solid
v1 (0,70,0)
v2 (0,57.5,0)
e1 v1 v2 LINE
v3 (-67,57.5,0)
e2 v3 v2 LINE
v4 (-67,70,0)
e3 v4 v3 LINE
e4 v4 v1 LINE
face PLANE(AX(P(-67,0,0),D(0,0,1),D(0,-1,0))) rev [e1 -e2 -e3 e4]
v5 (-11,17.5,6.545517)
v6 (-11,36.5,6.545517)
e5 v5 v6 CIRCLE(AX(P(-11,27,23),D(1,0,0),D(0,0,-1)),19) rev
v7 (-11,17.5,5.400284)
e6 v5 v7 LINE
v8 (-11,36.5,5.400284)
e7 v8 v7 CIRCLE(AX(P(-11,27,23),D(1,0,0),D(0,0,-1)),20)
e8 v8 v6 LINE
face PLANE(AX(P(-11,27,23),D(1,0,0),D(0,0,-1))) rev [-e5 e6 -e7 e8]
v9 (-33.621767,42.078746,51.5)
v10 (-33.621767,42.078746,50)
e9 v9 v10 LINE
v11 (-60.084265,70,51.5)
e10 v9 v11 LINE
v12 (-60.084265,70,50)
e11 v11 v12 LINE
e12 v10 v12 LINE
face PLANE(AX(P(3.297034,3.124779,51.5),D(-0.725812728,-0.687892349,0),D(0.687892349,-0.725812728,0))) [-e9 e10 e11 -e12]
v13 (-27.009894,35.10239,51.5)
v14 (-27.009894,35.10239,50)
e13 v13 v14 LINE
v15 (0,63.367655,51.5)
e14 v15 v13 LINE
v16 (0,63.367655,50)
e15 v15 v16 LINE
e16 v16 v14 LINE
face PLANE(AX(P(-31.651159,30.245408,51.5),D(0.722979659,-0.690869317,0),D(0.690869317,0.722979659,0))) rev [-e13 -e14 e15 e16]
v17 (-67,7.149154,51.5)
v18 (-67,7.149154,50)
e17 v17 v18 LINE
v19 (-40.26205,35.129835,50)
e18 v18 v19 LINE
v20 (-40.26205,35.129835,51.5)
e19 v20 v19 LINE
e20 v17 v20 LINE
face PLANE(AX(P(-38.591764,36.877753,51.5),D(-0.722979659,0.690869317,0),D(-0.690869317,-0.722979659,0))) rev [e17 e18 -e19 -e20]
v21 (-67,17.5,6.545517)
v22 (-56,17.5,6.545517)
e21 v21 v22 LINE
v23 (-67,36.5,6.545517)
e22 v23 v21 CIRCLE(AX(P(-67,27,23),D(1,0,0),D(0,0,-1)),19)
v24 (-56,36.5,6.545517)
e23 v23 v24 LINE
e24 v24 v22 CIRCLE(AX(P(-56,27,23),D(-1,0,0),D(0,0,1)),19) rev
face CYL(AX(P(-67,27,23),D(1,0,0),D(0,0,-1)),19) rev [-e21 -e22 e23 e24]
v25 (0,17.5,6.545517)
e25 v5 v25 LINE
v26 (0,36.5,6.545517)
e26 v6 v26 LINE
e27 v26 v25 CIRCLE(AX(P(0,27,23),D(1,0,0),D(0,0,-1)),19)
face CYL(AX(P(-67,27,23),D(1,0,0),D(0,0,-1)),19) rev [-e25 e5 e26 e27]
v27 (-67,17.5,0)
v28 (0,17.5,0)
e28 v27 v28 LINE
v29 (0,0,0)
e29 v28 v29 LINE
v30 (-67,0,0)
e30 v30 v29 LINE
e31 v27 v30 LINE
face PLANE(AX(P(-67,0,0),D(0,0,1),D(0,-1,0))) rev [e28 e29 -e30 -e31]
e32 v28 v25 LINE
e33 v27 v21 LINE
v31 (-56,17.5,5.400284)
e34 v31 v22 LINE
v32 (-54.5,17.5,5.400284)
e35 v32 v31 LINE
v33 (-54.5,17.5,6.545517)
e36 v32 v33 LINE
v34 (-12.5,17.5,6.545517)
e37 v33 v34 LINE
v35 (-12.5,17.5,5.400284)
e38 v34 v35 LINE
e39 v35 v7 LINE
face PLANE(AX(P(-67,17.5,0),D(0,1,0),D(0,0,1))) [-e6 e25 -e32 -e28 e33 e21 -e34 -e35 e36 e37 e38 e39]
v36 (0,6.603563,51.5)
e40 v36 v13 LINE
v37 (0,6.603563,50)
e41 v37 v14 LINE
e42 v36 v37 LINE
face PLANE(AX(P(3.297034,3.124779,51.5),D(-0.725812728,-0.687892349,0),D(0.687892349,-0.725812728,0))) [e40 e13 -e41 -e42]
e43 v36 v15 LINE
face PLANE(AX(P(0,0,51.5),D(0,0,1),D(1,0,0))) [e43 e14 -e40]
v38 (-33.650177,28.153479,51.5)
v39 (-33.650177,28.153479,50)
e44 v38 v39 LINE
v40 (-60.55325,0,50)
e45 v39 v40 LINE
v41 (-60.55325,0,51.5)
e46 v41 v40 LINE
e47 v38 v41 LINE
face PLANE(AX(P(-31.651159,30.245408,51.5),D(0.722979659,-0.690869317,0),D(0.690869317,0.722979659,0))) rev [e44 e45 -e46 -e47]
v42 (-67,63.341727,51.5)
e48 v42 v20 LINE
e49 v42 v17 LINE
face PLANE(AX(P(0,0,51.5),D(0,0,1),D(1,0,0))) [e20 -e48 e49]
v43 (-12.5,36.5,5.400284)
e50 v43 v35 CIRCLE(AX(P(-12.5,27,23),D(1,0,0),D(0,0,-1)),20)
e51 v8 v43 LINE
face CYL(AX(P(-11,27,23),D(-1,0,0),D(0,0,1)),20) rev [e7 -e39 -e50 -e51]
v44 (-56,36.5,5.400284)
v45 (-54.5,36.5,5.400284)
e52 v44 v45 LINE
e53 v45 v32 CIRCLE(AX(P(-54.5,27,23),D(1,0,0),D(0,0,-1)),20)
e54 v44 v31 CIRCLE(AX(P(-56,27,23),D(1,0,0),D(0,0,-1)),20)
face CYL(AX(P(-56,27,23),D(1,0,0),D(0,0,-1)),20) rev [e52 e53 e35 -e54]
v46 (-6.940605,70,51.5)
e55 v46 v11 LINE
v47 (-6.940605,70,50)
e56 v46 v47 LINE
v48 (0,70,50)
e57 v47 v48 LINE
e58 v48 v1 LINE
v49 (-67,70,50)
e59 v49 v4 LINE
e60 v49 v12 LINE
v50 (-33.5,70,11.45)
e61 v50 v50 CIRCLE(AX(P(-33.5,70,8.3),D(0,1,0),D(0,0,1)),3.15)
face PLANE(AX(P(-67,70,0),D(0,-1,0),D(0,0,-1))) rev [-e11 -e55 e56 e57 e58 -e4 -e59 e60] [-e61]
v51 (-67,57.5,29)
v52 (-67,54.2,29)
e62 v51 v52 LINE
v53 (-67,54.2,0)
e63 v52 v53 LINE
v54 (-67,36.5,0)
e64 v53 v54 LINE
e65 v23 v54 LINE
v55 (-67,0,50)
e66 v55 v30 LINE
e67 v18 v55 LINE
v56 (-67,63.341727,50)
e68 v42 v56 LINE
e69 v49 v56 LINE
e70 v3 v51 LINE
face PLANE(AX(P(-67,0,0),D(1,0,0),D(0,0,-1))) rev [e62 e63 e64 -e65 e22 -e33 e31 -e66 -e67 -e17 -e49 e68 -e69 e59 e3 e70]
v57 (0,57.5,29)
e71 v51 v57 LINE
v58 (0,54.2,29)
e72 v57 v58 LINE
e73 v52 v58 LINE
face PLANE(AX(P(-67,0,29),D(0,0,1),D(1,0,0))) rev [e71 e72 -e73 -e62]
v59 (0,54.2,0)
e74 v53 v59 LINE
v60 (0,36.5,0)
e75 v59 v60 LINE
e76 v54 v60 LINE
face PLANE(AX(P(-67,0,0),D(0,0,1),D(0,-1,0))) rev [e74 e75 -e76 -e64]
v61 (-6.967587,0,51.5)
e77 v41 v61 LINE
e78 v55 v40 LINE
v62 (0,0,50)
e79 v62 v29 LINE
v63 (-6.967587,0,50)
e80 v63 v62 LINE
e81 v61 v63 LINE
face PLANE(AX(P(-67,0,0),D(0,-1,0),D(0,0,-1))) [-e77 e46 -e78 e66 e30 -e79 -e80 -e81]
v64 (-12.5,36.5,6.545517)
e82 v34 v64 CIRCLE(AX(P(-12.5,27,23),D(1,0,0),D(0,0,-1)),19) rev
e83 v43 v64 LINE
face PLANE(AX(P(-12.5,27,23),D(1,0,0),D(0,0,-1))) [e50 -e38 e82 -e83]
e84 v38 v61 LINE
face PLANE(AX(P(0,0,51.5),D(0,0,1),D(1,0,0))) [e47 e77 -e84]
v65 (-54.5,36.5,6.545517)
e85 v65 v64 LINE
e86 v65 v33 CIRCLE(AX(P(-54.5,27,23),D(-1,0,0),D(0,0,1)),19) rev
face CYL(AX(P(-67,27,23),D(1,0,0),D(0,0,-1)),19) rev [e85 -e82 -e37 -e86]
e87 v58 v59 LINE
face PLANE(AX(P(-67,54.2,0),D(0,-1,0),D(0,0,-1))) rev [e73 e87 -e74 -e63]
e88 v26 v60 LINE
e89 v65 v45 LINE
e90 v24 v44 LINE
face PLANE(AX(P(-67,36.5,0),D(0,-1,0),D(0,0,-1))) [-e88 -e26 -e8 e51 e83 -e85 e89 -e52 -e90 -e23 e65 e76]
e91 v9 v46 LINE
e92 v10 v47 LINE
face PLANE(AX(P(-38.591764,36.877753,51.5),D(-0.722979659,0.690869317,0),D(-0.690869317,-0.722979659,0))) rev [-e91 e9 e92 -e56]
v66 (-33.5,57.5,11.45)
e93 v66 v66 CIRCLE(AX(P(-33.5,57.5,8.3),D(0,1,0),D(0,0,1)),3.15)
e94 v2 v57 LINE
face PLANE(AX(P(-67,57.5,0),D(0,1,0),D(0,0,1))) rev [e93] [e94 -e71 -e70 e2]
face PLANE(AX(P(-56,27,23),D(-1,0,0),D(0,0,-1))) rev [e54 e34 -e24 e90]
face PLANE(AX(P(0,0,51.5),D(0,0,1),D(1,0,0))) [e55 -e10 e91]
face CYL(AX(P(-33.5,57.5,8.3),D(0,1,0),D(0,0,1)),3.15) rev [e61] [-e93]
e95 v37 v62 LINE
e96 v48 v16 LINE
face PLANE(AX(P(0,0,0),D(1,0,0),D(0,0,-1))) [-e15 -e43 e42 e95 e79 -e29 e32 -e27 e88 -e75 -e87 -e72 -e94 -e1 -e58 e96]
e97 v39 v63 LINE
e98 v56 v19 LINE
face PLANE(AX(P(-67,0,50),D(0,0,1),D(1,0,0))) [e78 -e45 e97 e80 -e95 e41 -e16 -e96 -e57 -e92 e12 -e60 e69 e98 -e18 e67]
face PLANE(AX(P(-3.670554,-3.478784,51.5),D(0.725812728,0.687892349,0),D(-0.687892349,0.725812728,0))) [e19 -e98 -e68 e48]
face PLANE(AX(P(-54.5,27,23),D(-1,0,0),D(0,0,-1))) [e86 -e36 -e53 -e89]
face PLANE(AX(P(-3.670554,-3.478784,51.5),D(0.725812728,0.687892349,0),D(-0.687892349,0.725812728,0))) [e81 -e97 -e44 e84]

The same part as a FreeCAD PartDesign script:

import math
import FreeCAD as App
import Part
import Sketcher
from FreeCAD import Vector

doc = App.newDocument("Part")
body = doc.addObject("PartDesign::Body", "Body")

# Sketch on YZ plane
sketch1 = doc.addObject("Sketcher::SketchObject", "Sketch")
body.addObject(sketch1)
sketch1.AttachmentSupport = (doc.YZ_Plane, [""])
sketch1.MapMode = "FlatFace"
sketch1.addGeometry(Part.LineSegment(Vector(70, 0, 0), Vector(70, 50, 0)), False)
sketch1.addGeometry(Part.LineSegment(Vector(70, 50, 0), Vector(0, 50, 0)), False)
sketch1.addGeometry(Part.LineSegment(Vector(0, 50, 0), Vector(0, 0, 0)), False)
sketch1.addGeometry(Part.LineSegment(Vector(0, 0, 0), Vector(17.5, 0, 0)), False)
sketch1.addGeometry(Part.LineSegment(Vector(17.5, 0, 0), Vector(17.5, 6.545517, 0)), False)
sketch1.addGeometry(Part.ArcOfCircle(Part.Circle(Vector(27, 23, 0), Vector(0, 0, 1), 19), math.radians(-60), math.radians(240)), False)
sketch1.addGeometry(Part.LineSegment(Vector(36.5, 6.545517, 0), Vector(36.5, 0, 0)), False)
sketch1.addGeometry(Part.LineSegment(Vector(36.5, 0, 0), Vector(54.2, 0, 0)), False)
sketch1.addGeometry(Part.LineSegment(Vector(54.2, 0, 0), Vector(54.2, 29, 0)), False)
sketch1.addGeometry(Part.LineSegment(Vector(54.2, 29, 0), Vector(57.5, 29, 0)), False)
sketch1.addGeometry(Part.LineSegment(Vector(57.5, 29, 0), Vector(57.5, 0, 0)), False)
sketch1.addGeometry(Part.LineSegment(Vector(57.5, 0, 0), Vector(70, 0, 0)), False)
sketch1.addConstraint(Sketcher.Constraint("Coincident", 0, 2, 1, 1))
sketch1.addConstraint(Sketcher.Constraint("Coincident", 1, 2, 2, 1))
sketch1.addConstraint(Sketcher.Constraint("Coincident", 2, 2, 3, 1))
sketch1.addConstraint(Sketcher.Constraint("Coincident", 3, 2, 4, 1))
sketch1.addConstraint(Sketcher.Constraint("Coincident", 4, 2, 5, 2))
sketch1.addConstraint(Sketcher.Constraint("Coincident", 5, 1, 6, 1))
sketch1.addConstraint(Sketcher.Constraint("Coincident", 6, 2, 7, 1))
sketch1.addConstraint(Sketcher.Constraint("Coincident", 7, 2, 8, 1))
sketch1.addConstraint(Sketcher.Constraint("Coincident", 8, 2, 9, 1))
sketch1.addConstraint(Sketcher.Constraint("Coincident", 9, 2, 10, 1))
sketch1.addConstraint(Sketcher.Constraint("Coincident", 10, 2, 11, 1))
sketch1.addConstraint(Sketcher.Constraint("Coincident", 11, 2, 0, 1))
sketch1.addConstraint(Sketcher.Constraint("Vertical", 0))
sketch1.addConstraint(Sketcher.Constraint("Horizontal", 1))
sketch1.addConstraint(Sketcher.Constraint("Vertical", 2))
sketch1.addConstraint(Sketcher.Constraint("Horizontal", 3))
sketch1.addConstraint(Sketcher.Constraint("Vertical", 4))
sketch1.addConstraint(Sketcher.Constraint("Vertical", 6))
sketch1.addConstraint(Sketcher.Constraint("Horizontal", 7))
sketch1.addConstraint(Sketcher.Constraint("Vertical", 8))
sketch1.addConstraint(Sketcher.Constraint("Horizontal", 9))
sketch1.addConstraint(Sketcher.Constraint("Vertical", 10))
sketch1.addConstraint(Sketcher.Constraint("Horizontal", 11))
sketch1.addConstraint(Sketcher.Constraint("Coincident", 2, 2, -1, 1))
sketch1.addConstraint(Sketcher.Constraint("PointOnObject", 6, 2, -1))
sketch1.addConstraint(Sketcher.Constraint("PointOnObject", 10, 2, -1))
sketch1.addConstraint(Sketcher.Constraint("Horizontal", 4, 2, 5, 1))
sketch1.addConstraint(Sketcher.Constraint("Radius", 5, 19.0))
sketch1.addConstraint(Sketcher.Constraint("DistanceX", 1, 2, 1, 1, 70.0))
sketch1.addConstraint(Sketcher.Constraint("DistanceY", 0, 1, 0, 2, 50.0))
sketch1.addConstraint(Sketcher.Constraint("DistanceY", 8, 1, 8, 2, 29.0))
sketch1.addConstraint(Sketcher.Constraint("DistanceX", 3, 1, 3, 2, 17.5))
sketch1.addConstraint(Sketcher.Constraint("DistanceX", 7, 1, 7, 2, 17.7))
sketch1.addConstraint(Sketcher.Constraint("DistanceX", 9, 1, 9, 2, 3.3))
sketch1.addConstraint(Sketcher.Constraint("DistanceX", 11, 1, 11, 2, 12.5))
sketch1.addConstraint(Sketcher.Constraint("DistanceY", -1, 1, 5, 3, 23.0))
pad1 = doc.addObject("PartDesign::Pad", "Pad")
body.addObject(pad1)
pad1.Profile = sketch1
pad1.Length = 67
pad1.Reversed = True

# Sketch on YZ plane
sketch2 = doc.addObject("Sketcher::SketchObject", "Sketch001")
body.addObject(sketch2)
sketch2.AttachmentSupport = (doc.YZ_Plane, [""])
sketch2.MapMode = "FlatFace"
sketch2.AttachmentOffset = App.Placement(Vector(0, 0, -12.5), App.Rotation())
sketch2.addGeometry(Part.Circle(Vector(27, 23, 0), Vector(0, 0, 1), 20), False)
sketch2.addConstraint(Sketcher.Constraint("Diameter", 0, 40.0))
sketch2.addConstraint(Sketcher.Constraint("DistanceX", -1, 1, 0, 3, 27.0))
sketch2.addConstraint(Sketcher.Constraint("DistanceY", -1, 1, 0, 3, 23.0))
pocket1 = doc.addObject("PartDesign::Pocket", "Pocket")
body.addObject(pocket1)
pocket1.Profile = sketch2
pocket1.Length = 1.5
pocket1.Reversed = True
doc.recompute()

datumplane = doc.addObject("PartDesign::Plane", "DatumPlane")
body.addObject(datumplane)
datumplane.AttachmentSupport = (doc.YZ_Plane, [""])
datumplane.MapMode = "FlatFace"
datumplane.AttachmentOffset = App.Placement(Vector(0, 0, -33.5), App.Rotation())
mirrored = doc.addObject("PartDesign::Mirrored", "Mirrored")
body.addObject(mirrored)
mirrored.Originals = [pocket1]
mirrored.MirrorPlane = (datumplane, [""])
body.Tip = mirrored

# Sketch on XY plane
sketch3 = doc.addObject("Sketcher::SketchObject", "Sketch002")
body.addObject(sketch3)
sketch3.AttachmentSupport = (doc.XY_Plane, [""])
sketch3.MapMode = "FlatFace"
sketch3.AttachmentOffset = App.Placement(Vector(0, 0, 50), App.Rotation())
sketch3.addGeometry(Part.LineSegment(Vector(-60.55325, 0, 0), Vector(-6.967587, 0, 0)), False)
sketch3.addGeometry(Part.LineSegment(Vector(-6.967587, 0, 0), Vector(-33.650177, 28.153479, 0)), False)
sketch3.addGeometry(Part.LineSegment(Vector(-33.650177, 28.153479, 0), Vector(-60.55325, 0, 0)), False)
sketch3.addGeometry(Part.LineSegment(Vector(0, 6.603563, 0), Vector(0, 63.367655, 0)), False)
sketch3.addGeometry(Part.LineSegment(Vector(0, 63.367655, 0), Vector(-27.009894, 35.10239, 0)), False)
sketch3.addGeometry(Part.LineSegment(Vector(-27.009894, 35.10239, 0), Vector(0, 6.603563, 0)), False)
sketch3.addGeometry(Part.LineSegment(Vector(-67, 63.341727, 0), Vector(-67, 7.149154, 0)), False)
sketch3.addGeometry(Part.LineSegment(Vector(-67, 7.149154, 0), Vector(-40.26205, 35.129835, 0)), False)
sketch3.addGeometry(Part.LineSegment(Vector(-40.26205, 35.129835, 0), Vector(-67, 63.341727, 0)), False)
sketch3.addGeometry(Part.LineSegment(Vector(-6.940605, 70, 0), Vector(-60.084265, 70, 0)), False)
sketch3.addGeometry(Part.LineSegment(Vector(-60.084265, 70, 0), Vector(-33.621767, 42.078746, 0)), False)
sketch3.addGeometry(Part.LineSegment(Vector(-33.621767, 42.078746, 0), Vector(-6.940605, 70, 0)), False)
sketch3.addConstraint(Sketcher.Constraint("Coincident", 0, 2, 1, 1))
sketch3.addConstraint(Sketcher.Constraint("Coincident", 1, 2, 2, 1))
sketch3.addConstraint(Sketcher.Constraint("Coincident", 2, 2, 0, 1))
sketch3.addConstraint(Sketcher.Constraint("Coincident", 3, 2, 4, 1))
sketch3.addConstraint(Sketcher.Constraint("Coincident", 4, 2, 5, 1))
sketch3.addConstraint(Sketcher.Constraint("Coincident", 5, 2, 3, 1))
sketch3.addConstraint(Sketcher.Constraint("Coincident", 6, 2, 7, 1))
sketch3.addConstraint(Sketcher.Constraint("Coincident", 7, 2, 8, 1))
sketch3.addConstraint(Sketcher.Constraint("Coincident", 8, 2, 6, 1))
sketch3.addConstraint(Sketcher.Constraint("Coincident", 9, 2, 10, 1))
sketch3.addConstraint(Sketcher.Constraint("Coincident", 10, 2, 11, 1))
sketch3.addConstraint(Sketcher.Constraint("Coincident", 11, 2, 9, 1))
sketch3.addConstraint(Sketcher.Constraint("Horizontal", 0))
sketch3.addConstraint(Sketcher.Constraint("Vertical", 3))
sketch3.addConstraint(Sketcher.Constraint("Vertical", 6))
sketch3.addConstraint(Sketcher.Constraint("Horizontal", 9))
sketch3.addConstraint(Sketcher.Constraint("PointOnObject", 0, 2, -1))
sketch3.addConstraint(Sketcher.Constraint("PointOnObject", 3, 2, -2))
sketch3.addConstraint(Sketcher.Constraint("Parallel", 2, 4))
sketch3.addConstraint(Sketcher.Constraint("Parallel", 1, 5))
sketch3.addConstraint(Sketcher.Constraint("Parallel", 4, 7))
sketch3.addConstraint(Sketcher.Constraint("Parallel", 5, 8))
sketch3.addConstraint(Sketcher.Constraint("Parallel", 8, 10))
sketch3.addConstraint(Sketcher.Constraint("Parallel", 7, 11))
sketch3.addConstraint(Sketcher.Constraint("DistanceX", 6, 2, -1, 1, 67.0))
sketch3.addConstraint(Sketcher.Constraint("DistanceY", -1, 1, 9, 2, 70.0))
sketch3.addConstraint(Sketcher.Constraint("Distance", 2, 38.940901))
sketch3.addConstraint(Sketcher.Constraint("DistanceX", 9, 2, 9, 1, 53.14366))
sketch3.addConstraint(Sketcher.Constraint("DistanceY", 3, 1, 3, 2, 56.764092))
sketch3.addConstraint(Sketcher.Constraint("DistanceX", 2, 2, 7, 2, 20.2912))
sketch3.addConstraint(Sketcher.Constraint("Distance", 4, 39.095519))
sketch3.addConstraint(Sketcher.Constraint("Distance", 5, 39.264711))
sketch3.addConstraint(Sketcher.Constraint("Distance", 8, 38.869381))
sketch3.addConstraint(Sketcher.Constraint("DistanceY", -1, 1, 4, 2, 35.10239))
sketch3.addConstraint(Sketcher.Constraint("DistanceY", 5, 2, 6, 2, 0.545591))
sketch3.addConstraint(Sketcher.Constraint("DistanceX", 9, 2, 4, 2, 33.07437))
pad2 = doc.addObject("PartDesign::Pad", "Pad001")
body.addObject(pad2)
pad2.Profile = sketch3
pad2.Length = 1.5

# Sketch on XZ plane
sketch4 = doc.addObject("Sketcher::SketchObject", "Sketch003")
body.addObject(sketch4)
sketch4.AttachmentSupport = (doc.XZ_Plane, [""])
sketch4.MapMode = "FlatFace"
sketch4.AttachmentOffset = App.Placement(Vector(0, 0, -70), App.Rotation())
sketch4.addGeometry(Part.Circle(Vector(-33.5, 8.3, 0), Vector(0, 0, 1), 3.15), False)
sketch4.addConstraint(Sketcher.Constraint("Diameter", 0, 6.3))
sketch4.addConstraint(Sketcher.Constraint("DistanceX", 0, 3, -1, 1, 33.5))
sketch4.addConstraint(Sketcher.Constraint("DistanceY", -1, 1, 0, 3, 8.3))
pocket2 = doc.addObject("PartDesign::Pocket", "Pocket001")
body.addObject(pocket2)
pocket2.Profile = sketch4
pocket2.Length = 12.5
pocket2.Reversed = True

doc.recompute()
